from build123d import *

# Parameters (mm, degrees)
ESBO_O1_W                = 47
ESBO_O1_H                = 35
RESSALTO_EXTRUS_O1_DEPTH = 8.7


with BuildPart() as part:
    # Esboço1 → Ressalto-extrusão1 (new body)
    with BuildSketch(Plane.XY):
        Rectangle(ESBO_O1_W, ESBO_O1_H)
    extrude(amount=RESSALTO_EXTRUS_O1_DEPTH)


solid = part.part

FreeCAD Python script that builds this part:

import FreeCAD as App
import Part
import Sketcher


def add_polygon(sketch, points):
    """Adds a closed chain of lines whose ends are joined by coincident constraints."""
    first, n = sketch.GeometryCount, len(points)
    for a, b in zip(points, points[1:] + points[:1]):
        sketch.addGeometry(Part.LineSegment(App.Vector(*a, 0), App.Vector(*b, 0)), False)
    for i in range(n):
        sketch.addConstraint(Sketcher.Constraint("Coincident", first + i, 2, first + (i + 1) % n, 1))

doc = App.newDocument("Part")
body = doc.addObject("PartDesign::Body", "Body")

# Sketch on XY plane
sketch1 = body.newObject("Sketcher::SketchObject", "Sketch")
sketch1.AttachmentSupport = (doc.getObject("XY_Plane"), [""])
sketch1.MapMode = "FlatFace"
add_polygon(sketch1, [(-23.5, 17.5), (-23.5, -17.5), (23.5, -17.5), (23.5, 17.5)])  # lines 0-3
sketch1.addConstraint(Sketcher.Constraint("Vertical", 0))
sketch1.addConstraint(Sketcher.Constraint("Horizontal", 1))
sketch1.addConstraint(Sketcher.Constraint("Vertical", 2))
sketch1.addConstraint(Sketcher.Constraint("Horizontal", 3))
sketch1.addConstraint(Sketcher.Constraint("Symmetric", 0, 2, 2, 2, -1, 1))
sketch1.addConstraint(Sketcher.Constraint("DistanceX", 1, 1, 1, 2, 47.0))
sketch1.addConstraint(Sketcher.Constraint("DistanceY", 0, 2, 0, 1, 35.0))
pad1 = body.newObject("PartDesign::Pad", "Pad")
pad1.Profile = sketch1
pad1.Length = 8.7

doc.recompute()
